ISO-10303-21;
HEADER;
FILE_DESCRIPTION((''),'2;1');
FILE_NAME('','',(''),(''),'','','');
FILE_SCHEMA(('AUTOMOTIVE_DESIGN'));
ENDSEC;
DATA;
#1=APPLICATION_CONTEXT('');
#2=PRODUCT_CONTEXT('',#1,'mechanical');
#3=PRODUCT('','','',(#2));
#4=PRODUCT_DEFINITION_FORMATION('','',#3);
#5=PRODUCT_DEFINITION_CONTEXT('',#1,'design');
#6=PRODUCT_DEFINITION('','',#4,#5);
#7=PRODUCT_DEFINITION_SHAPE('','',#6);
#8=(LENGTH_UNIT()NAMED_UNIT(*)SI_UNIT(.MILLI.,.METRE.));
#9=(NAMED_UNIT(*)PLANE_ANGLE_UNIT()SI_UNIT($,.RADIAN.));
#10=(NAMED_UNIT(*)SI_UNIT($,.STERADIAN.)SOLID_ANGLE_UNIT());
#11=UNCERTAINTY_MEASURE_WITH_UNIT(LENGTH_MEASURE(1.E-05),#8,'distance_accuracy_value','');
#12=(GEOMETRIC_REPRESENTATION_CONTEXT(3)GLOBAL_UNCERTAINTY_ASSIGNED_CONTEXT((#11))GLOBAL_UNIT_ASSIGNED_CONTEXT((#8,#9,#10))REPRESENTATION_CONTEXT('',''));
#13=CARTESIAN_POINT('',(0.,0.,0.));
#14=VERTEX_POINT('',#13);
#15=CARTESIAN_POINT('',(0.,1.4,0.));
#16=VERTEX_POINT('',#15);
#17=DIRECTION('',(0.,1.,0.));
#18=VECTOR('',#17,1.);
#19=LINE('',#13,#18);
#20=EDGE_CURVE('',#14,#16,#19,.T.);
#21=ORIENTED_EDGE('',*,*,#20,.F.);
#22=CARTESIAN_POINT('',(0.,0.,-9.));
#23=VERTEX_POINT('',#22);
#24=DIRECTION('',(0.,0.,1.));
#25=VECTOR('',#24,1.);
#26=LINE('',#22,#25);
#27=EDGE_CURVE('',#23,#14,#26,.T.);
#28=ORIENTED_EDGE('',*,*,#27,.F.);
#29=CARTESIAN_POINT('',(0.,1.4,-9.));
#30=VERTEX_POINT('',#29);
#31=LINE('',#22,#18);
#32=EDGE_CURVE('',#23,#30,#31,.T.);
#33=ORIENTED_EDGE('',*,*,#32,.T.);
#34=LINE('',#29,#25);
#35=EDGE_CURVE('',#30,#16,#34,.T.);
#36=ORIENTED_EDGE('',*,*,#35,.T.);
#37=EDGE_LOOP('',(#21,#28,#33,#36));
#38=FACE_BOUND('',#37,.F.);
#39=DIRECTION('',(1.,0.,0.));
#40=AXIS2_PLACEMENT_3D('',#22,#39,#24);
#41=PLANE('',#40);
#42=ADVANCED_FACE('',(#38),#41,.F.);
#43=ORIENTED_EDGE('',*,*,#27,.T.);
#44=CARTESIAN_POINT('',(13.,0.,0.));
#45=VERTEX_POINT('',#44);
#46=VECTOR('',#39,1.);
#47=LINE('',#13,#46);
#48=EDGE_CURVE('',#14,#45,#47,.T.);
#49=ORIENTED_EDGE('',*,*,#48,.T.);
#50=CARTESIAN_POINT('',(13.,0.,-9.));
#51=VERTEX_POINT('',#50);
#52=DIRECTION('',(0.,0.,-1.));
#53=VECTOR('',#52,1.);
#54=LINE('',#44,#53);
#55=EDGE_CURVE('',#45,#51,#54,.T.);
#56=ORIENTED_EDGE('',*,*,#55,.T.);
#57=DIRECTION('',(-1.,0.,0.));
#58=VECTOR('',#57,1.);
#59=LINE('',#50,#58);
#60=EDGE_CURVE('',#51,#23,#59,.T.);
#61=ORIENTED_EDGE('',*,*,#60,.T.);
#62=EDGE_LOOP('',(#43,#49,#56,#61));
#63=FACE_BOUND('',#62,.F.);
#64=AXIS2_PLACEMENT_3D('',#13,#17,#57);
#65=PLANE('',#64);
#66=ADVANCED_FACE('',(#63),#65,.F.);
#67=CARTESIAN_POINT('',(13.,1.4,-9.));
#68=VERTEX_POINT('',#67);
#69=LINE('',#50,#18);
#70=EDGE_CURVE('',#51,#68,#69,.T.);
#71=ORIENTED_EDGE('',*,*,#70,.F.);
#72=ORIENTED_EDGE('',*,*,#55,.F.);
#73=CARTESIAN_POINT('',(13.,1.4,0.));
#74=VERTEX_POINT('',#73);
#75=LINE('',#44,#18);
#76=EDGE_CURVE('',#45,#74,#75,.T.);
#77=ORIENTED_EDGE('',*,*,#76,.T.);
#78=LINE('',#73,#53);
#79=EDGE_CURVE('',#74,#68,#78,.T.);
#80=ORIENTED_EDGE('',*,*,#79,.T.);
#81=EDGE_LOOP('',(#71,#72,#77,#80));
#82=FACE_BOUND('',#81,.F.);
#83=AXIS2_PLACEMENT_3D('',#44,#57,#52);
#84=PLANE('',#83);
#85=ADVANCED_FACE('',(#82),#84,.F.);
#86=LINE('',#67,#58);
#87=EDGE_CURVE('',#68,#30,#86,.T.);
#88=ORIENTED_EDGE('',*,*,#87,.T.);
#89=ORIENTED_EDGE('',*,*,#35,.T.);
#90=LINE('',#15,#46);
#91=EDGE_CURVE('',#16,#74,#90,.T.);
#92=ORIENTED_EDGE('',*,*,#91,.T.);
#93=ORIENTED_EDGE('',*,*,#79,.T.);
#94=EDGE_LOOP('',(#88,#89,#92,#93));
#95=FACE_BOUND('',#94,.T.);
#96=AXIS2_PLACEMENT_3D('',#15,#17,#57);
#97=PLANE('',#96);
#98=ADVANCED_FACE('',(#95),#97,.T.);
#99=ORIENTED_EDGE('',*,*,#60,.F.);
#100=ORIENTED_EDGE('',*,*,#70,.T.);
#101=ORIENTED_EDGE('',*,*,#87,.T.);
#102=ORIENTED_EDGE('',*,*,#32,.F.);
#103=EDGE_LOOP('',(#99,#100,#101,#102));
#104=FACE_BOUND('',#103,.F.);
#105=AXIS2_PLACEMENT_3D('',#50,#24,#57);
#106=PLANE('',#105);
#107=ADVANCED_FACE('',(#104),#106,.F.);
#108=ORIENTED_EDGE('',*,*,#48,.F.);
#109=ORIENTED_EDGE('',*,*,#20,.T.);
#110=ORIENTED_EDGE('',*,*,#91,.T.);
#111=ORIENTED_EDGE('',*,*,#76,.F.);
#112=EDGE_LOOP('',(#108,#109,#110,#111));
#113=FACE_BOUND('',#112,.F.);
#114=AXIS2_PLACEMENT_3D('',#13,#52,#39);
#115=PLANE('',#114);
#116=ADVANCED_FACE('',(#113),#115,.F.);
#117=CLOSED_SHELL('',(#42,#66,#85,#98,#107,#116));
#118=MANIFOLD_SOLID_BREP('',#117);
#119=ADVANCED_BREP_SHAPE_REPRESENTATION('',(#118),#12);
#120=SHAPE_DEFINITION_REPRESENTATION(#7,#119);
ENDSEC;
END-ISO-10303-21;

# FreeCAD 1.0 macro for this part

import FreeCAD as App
import Part
import Sketcher

V = App.Vector


def add_polygon(sketch, points):
    """Adds a closed chain of lines whose ends are joined by coincident constraints."""
    first, n = sketch.GeometryCount, len(points)
    for a, b in zip(points, points[1:] + points[:1]):
        sketch.addGeometry(Part.LineSegment(App.Vector(*a, 0), App.Vector(*b, 0)), False)
    for i in range(n):
        sketch.addConstraint(Sketcher.Constraint("Coincident", first + i, 2, first + (i + 1) % n, 1))

doc = App.newDocument("Part")
body = doc.addObject("PartDesign::Body", "Body")

# Sketch on XZ plane
sketch1 = body.newObject("Sketcher::SketchObject", "Sketch")
sketch1.AttachmentSupport = (doc.getObject("XZ_Plane"), [""])
sketch1.MapMode = "FlatFace"
add_polygon(sketch1, [(0, -9), (0, 0), (13, 0), (13, -9)])  # lines 0-3
sketch1.addConstraint(Sketcher.Constraint("Vertical", 0))
sketch1.addConstraint(Sketcher.Constraint("Horizontal", 1))
sketch1.addConstraint(Sketcher.Constraint("Vertical", 2))
sketch1.addConstraint(Sketcher.Constraint("Horizontal", 3))
sketch1.addConstraint(Sketcher.Constraint("Coincident", 0, 2, -1, 1))
sketch1.addConstraint(Sketcher.Constraint("DistanceX", 1, 1, 1, 2, 13.0))
sketch1.addConstraint(Sketcher.Constraint("DistanceY", 0, 1, 0, 2, 9.0))
pad1 = body.newObject("PartDesign::Pad", "Pad")
pad1.Profile = sketch1
pad1.Length = 1.4
pad1.Reversed = True

doc.recompute()
